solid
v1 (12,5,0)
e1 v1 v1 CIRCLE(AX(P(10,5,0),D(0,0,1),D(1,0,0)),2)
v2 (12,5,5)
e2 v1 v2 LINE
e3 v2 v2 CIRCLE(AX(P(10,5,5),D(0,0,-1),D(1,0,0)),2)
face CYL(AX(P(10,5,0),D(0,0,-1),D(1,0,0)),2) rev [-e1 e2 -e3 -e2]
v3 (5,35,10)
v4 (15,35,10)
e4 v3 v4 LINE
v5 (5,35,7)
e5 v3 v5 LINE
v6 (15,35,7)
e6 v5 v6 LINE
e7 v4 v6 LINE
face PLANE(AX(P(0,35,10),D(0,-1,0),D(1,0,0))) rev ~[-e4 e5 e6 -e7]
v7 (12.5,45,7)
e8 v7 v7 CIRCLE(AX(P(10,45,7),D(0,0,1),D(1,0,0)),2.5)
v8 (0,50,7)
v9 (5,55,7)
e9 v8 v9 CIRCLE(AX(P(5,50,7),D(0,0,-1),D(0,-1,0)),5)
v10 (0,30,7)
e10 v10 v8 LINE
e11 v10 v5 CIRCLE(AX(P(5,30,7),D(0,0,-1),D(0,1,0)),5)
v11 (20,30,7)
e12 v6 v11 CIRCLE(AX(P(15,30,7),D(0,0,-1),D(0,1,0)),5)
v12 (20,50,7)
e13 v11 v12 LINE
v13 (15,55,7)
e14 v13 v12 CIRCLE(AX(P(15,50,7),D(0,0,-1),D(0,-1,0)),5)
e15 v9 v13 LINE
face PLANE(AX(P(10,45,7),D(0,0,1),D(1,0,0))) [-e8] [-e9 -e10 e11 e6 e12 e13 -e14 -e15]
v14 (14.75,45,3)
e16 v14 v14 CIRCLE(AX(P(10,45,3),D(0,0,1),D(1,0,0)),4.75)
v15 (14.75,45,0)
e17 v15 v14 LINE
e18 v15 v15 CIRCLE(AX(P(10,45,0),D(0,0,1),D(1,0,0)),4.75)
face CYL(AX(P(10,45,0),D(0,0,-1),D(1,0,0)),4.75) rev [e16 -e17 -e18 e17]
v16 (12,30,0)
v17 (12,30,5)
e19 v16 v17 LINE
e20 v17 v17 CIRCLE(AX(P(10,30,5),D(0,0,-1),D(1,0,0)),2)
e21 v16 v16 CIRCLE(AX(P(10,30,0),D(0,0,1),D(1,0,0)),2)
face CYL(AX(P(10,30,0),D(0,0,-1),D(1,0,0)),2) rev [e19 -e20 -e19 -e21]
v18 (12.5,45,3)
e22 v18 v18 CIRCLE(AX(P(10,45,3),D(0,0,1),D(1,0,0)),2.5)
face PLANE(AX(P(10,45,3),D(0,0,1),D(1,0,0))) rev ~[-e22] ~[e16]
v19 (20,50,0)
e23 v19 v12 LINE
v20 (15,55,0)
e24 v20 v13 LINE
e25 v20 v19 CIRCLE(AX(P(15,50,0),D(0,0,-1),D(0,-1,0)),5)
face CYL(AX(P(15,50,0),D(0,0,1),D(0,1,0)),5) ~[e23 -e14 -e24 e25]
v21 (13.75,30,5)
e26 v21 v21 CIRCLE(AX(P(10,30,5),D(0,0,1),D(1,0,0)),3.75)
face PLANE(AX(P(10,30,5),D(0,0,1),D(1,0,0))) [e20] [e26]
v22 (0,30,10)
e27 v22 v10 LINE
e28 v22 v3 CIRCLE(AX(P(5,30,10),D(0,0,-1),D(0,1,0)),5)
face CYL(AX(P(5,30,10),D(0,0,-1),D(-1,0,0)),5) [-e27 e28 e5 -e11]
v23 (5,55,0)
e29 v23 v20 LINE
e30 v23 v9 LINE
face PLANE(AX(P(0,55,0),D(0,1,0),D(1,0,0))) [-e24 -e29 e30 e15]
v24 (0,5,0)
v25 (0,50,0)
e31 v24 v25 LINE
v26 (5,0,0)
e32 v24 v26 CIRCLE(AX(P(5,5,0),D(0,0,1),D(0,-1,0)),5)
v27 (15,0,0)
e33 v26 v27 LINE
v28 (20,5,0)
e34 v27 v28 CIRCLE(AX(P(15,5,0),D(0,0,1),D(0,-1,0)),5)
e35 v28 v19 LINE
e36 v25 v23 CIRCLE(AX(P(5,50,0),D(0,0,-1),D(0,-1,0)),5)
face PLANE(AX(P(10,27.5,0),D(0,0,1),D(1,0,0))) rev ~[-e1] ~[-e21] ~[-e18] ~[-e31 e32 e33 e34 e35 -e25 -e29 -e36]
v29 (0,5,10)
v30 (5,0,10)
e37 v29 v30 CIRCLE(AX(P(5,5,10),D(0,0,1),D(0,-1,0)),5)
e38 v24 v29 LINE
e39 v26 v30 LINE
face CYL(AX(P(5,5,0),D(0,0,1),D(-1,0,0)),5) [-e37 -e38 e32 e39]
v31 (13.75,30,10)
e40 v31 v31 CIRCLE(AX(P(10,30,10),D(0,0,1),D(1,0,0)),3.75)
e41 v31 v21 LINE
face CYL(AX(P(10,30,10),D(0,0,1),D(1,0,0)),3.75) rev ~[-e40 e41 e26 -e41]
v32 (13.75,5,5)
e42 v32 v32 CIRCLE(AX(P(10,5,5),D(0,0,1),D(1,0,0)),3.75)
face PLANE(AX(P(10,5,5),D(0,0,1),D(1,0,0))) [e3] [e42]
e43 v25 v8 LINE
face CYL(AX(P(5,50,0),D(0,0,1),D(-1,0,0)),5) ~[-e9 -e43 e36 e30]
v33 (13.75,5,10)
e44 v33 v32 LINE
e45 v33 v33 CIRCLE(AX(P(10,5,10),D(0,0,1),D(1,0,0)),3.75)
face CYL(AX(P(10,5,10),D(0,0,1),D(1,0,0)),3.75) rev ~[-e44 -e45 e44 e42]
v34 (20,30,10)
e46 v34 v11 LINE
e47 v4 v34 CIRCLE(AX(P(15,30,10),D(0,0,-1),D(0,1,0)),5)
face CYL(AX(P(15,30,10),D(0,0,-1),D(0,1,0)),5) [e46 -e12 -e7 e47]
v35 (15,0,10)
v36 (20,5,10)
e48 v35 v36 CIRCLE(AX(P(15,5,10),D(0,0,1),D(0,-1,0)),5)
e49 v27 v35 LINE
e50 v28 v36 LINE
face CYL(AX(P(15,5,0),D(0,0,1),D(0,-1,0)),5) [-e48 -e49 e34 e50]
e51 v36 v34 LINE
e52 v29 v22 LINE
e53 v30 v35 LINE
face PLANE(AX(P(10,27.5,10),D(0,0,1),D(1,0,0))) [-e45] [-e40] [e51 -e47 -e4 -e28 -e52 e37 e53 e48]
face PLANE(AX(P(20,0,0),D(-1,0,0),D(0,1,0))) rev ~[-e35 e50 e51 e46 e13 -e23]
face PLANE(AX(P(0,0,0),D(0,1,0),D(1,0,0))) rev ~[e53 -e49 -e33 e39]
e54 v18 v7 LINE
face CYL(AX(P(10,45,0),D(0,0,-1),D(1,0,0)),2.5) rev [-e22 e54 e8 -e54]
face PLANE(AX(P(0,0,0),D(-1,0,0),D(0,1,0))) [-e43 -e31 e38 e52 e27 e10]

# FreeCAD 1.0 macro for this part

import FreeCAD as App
import Part
import Sketcher
from FreeCAD import Vector


def edges_at(feature, points):
    """Names of the edges that pass closest to the given points."""
    edges = feature.Shape.Edges
    near = lambda p: min(range(len(edges)), key=lambda i: edges[i].distToShape(Part.Vertex(*p))[0])
    return sorted({f"Edge{near(p) + 1}" for p in points})

doc = App.newDocument("Part")
body = doc.addObject("PartDesign::Body", "Body")

sketch1 = body.newObject("Sketcher::SketchObject", "Sketch")
sketch1.AttachmentSupport = (doc.getObject("XY_Plane"), [""])
sketch1.MapMode = "FlatFace"
sketch1.addGeometry([
    Part.LineSegment(Vector(0, 55, 0), Vector(0, 0, 0)),
    Part.LineSegment(Vector(0, 0, 0), Vector(20, 0, 0)),
    Part.LineSegment(Vector(20, 0, 0), Vector(20, 55, 0)),
    Part.LineSegment(Vector(20, 55, 0), Vector(0, 55, 0)),
    Part.Circle(Vector(10, 5, 0), Vector(0, 0, 1), 2),
    Part.Circle(Vector(10, 30, 0), Vector(0, 0, 1), 2),
    Part.Circle(Vector(10, 45, 0), Vector(0, 0, 1), 2.5),
], False)
sketch1.addConstraint([
    Sketcher.Constraint("Coincident", 0, 2, 1, 1),
    Sketcher.Constraint("Coincident", 1, 2, 2, 1),
    Sketcher.Constraint("Coincident", 2, 2, 3, 1),
    Sketcher.Constraint("Coincident", 3, 2, 0, 1),
    Sketcher.Constraint("Vertical", 0),
    Sketcher.Constraint("Horizontal", 1),
    Sketcher.Constraint("Vertical", 2),
    Sketcher.Constraint("Horizontal", 3),
    Sketcher.Constraint("Coincident", 0, 2, -1, 1),
    Sketcher.Constraint("Equal", 4, 5),
    Sketcher.Constraint("Vertical", 4, 3, 5, 3),
    Sketcher.Constraint("Vertical", 5, 3, 6, 3),
    Sketcher.Constraint("Diameter", 4, 4.0),
    Sketcher.Constraint("Diameter", 6, 5.0),
    Sketcher.Constraint("DistanceX", 1, 1, 1, 2, 20.0),
    Sketcher.Constraint("DistanceY", 0, 2, 0, 1, 55.0),
    Sketcher.Constraint("DistanceX", -1, 1, 4, 3, 10.0),
    Sketcher.Constraint("DistanceY", -1, 1, 4, 3, 5.0),
    Sketcher.Constraint("DistanceY", -1, 1, 5, 3, 30.0),
    Sketcher.Constraint("DistanceY", -1, 1, 6, 3, 45.0),
])
pad1 = body.newObject("PartDesign::Pad", "Pad")
pad1.Profile = sketch1
pad1.Length = 10

sketch2 = body.newObject("Sketcher::SketchObject", "Sketch001")
sketch2.AttachmentSupport = (doc.getObject("XY_Plane"), [""])
sketch2.MapMode = "FlatFace"
sketch2.AttachmentOffset = App.Placement(Vector(0, 0, 10), App.Rotation())
sketch2.addGeometry([
    Part.Circle(Vector(10, 5, 0), Vector(0, 0, 1), 3.8),
    Part.Circle(Vector(10, 30, 0), Vector(0, 0, 1), 3.8),
], False)
sketch2.addConstraint([
    Sketcher.Constraint("Equal", 0, 1),
    Sketcher.Constraint("Vertical", 0, 3, 1, 3),
    Sketcher.Constraint("Diameter", 0, 7.5),
    Sketcher.Constraint("DistanceX", -1, 1, 0, 3, 10.0),
    Sketcher.Constraint("DistanceY", -1, 1, 0, 3, 5.0),
    Sketcher.Constraint("DistanceY", -1, 1, 1, 3, 30.0),
])
pocket1 = body.newObject("PartDesign::Pocket", "Pocket")
pocket1.Profile = sketch2
pocket1.Length = 5

sketch3 = body.newObject("Sketcher::SketchObject", "Sketch002")
sketch3.AttachmentSupport = (doc.getObject("XY_Plane"), [""])
sketch3.MapMode = "FlatFace"
sketch3.AttachmentOffset = App.Placement(Vector(0, 0, 10), App.Rotation())
sketch3.addGeometry([
    Part.LineSegment(Vector(0, 55, 0), Vector(0, 35, 0)),
    Part.LineSegment(Vector(0, 35, 0), Vector(20, 35, 0)),
    Part.LineSegment(Vector(20, 35, 0), Vector(20, 55, 0)),
    Part.LineSegment(Vector(20, 55, 0), Vector(0, 55, 0)),
    Part.Circle(Vector(10, 45, 0), Vector(0, 0, 1), 2.5),
], False)
sketch3.addConstraint([
    Sketcher.Constraint("Coincident", 0, 2, 1, 1),
    Sketcher.Constraint("Coincident", 1, 2, 2, 1),
    Sketcher.Constraint("Coincident", 2, 2, 3, 1),
    Sketcher.Constraint("Coincident", 3, 2, 0, 1),
    Sketcher.Constraint("Vertical", 0),
    Sketcher.Constraint("Horizontal", 1),
    Sketcher.Constraint("Vertical", 2),
    Sketcher.Constraint("Horizontal", 3),
    Sketcher.Constraint("PointOnObject", 0, 2, -2),
    Sketcher.Constraint("Equal", 3, 0),
    Sketcher.Constraint("Diameter", 4, 5.0),
    Sketcher.Constraint("DistanceX", 1, 1, 1, 2, 20.0),
    Sketcher.Constraint("DistanceX", -1, 1, 4, 3, 10.0),
    Sketcher.Constraint("DistanceY", -1, 1, 4, 3, 45.0),
    Sketcher.Constraint("DistanceY", -1, 1, 0, 2, 35.0),
])
pocket2 = body.newObject("PartDesign::Pocket", "Pocket001")
pocket2.Profile = sketch3
pocket2.Length = 3
doc.recompute()

fillet = body.newObject("PartDesign::Fillet", "Fillet")
fillet.Base = (pocket2, edges_at(pocket2, [
    (20, 0, 5),
    (20, 55, 3.5),
    (0, 55, 3.5),
    (0, 0, 5),
    (20, 35, 8.5),
    (0, 35, 8.5),
]))
fillet.Radius = 5

sketch4 = body.newObject("Sketcher::SketchObject", "Sketch003")
sketch4.AttachmentSupport = (doc.getObject("XY_Plane"), [""])
sketch4.MapMode = "FlatFace"
sketch4.addGeometry([
    Part.Circle(Vector(10, 45, 0), Vector(0, 0, 1), 4.8),
    Part.Circle(Vector(10, 45, 0), Vector(0, 0, 1), 2.5),
], False)
sketch4.addConstraint([
    Sketcher.Constraint("Coincident", 1, 3, 0, 3),
    Sketcher.Constraint("Diameter", 1, 5.0),
    Sketcher.Constraint("Diameter", 0, 9.5),
    Sketcher.Constraint("DistanceX", -1, 1, 0, 3, 10.0),
    Sketcher.Constraint("DistanceY", -1, 1, 0, 3, 45.0),
])
pocket3 = body.newObject("PartDesign::Pocket", "Pocket002")
pocket3.Profile = sketch4
pocket3.Length = 3
pocket3.Reversed = True

doc.recompute()
